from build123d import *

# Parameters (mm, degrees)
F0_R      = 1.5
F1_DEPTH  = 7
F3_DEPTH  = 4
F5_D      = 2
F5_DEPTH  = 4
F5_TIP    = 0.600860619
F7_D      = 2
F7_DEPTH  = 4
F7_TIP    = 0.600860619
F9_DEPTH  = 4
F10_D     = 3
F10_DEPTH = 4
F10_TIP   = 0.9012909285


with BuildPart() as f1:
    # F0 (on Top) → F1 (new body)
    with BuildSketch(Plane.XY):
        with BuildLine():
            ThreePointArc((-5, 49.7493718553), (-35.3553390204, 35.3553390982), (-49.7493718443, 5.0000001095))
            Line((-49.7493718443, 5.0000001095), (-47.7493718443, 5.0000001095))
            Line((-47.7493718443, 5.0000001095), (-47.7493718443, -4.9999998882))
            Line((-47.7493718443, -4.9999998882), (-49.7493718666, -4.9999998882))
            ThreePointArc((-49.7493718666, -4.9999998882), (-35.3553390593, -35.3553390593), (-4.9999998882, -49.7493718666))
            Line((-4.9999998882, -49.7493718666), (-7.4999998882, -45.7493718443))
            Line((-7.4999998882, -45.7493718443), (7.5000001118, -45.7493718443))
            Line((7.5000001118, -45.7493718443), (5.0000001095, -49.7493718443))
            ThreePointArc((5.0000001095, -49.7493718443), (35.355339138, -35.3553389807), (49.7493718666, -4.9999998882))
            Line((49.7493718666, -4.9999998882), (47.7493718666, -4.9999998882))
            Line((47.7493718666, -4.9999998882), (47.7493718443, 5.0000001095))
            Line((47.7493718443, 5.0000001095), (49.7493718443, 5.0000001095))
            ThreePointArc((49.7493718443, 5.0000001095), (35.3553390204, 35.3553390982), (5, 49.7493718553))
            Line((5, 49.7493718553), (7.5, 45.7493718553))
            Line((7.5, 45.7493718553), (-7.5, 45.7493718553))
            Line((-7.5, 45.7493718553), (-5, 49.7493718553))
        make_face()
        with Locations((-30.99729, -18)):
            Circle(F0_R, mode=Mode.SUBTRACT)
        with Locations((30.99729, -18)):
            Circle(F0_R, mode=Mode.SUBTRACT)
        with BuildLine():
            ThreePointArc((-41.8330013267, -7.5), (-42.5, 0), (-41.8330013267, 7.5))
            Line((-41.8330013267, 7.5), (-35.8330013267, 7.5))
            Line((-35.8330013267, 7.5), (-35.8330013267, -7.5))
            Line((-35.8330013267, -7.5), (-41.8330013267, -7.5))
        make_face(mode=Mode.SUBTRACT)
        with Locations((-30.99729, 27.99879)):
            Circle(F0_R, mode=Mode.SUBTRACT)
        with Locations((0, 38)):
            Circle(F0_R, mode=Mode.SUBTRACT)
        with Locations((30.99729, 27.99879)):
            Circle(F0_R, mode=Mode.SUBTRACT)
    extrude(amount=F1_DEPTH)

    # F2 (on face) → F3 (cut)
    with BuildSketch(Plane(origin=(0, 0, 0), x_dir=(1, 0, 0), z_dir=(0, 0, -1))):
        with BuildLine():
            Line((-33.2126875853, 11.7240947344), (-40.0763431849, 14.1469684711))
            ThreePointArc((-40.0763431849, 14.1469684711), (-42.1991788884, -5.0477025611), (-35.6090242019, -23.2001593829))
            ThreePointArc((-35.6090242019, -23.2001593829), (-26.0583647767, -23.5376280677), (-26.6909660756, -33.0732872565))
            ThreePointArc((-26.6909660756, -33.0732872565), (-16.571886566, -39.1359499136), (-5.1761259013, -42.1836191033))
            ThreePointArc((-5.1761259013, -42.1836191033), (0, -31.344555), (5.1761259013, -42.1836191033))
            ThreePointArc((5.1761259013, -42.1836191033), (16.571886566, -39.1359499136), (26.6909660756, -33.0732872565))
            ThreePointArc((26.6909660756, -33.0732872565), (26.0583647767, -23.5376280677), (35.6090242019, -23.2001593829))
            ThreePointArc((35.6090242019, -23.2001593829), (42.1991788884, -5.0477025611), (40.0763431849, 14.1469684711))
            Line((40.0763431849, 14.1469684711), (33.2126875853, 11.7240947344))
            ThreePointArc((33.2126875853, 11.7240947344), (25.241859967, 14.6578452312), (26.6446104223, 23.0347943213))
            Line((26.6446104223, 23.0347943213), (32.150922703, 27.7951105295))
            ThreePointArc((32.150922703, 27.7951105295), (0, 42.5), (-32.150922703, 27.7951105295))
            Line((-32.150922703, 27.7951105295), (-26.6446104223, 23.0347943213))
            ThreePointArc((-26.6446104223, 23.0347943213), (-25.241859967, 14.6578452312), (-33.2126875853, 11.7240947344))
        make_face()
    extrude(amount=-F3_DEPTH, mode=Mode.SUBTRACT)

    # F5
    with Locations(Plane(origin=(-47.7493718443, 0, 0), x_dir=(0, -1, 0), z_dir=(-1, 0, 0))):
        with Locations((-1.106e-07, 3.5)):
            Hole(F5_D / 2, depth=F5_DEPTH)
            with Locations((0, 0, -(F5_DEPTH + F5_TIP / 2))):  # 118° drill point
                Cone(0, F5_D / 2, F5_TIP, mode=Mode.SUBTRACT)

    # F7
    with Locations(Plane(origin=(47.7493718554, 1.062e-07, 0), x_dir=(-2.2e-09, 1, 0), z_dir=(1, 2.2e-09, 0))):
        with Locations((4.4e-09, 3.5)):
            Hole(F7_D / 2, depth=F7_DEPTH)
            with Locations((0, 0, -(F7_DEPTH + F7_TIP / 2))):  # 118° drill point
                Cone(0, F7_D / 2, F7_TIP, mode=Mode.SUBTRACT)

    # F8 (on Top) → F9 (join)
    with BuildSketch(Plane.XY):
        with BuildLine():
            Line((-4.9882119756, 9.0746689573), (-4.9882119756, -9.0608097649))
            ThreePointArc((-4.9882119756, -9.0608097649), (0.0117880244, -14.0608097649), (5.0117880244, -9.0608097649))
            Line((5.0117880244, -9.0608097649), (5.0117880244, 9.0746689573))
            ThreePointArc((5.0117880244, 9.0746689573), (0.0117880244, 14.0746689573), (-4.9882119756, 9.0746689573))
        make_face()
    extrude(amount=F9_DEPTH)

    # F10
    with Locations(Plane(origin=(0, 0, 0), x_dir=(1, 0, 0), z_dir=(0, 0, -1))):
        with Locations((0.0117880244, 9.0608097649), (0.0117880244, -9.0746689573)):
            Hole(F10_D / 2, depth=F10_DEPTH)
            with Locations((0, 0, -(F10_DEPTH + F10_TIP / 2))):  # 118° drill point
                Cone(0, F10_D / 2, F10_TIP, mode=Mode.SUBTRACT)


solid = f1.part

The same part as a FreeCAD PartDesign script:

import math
import FreeCAD as App
import Part
import Sketcher

V = App.Vector
Q = App.Units.Quantity

doc = App.newDocument("Part")
body = doc.addObject("PartDesign::Body", "Body")

sketch1 = body.newObject("Sketcher::SketchObject", "Sketch")
sketch1.AttachmentSupport = (doc.getObject("XY_Plane"), [""])
sketch1.MapMode = "FlatFace"
sketch1.addGeometry([
    Part.ArcOfCircle(Part.Circle(V(0, 0, 0), V(0, 0, 1), 50), math.radians(96), math.radians(174)),
    Part.LineSegment(V(-49.7, 5, 0), V(-47.7, 5, 0)),
    Part.LineSegment(V(-47.7, 5, 0), V(-47.7, -5, 0)),
    Part.LineSegment(V(-47.7, -5, 0), V(-49.7, -5, 0)),
    Part.ArcOfCircle(Part.Circle(V(0, 0, 0), V(0, 0, 1), 50), math.radians(-174), math.radians(-96)),
    Part.LineSegment(V(-5, -49.7, 0), V(-7.5, -45.7, 0)),
    Part.LineSegment(V(-7.5, -45.7, 0), V(7.5, -45.7, 0)),
    Part.LineSegment(V(7.5, -45.7, 0), V(5, -49.7, 0)),
    Part.ArcOfCircle(Part.Circle(V(0, 0, 0), V(0, 0, 1), 50), math.radians(-84), math.radians(-6)),
    Part.LineSegment(V(49.7, -5, 0), V(47.7, -5, 0)),
    Part.LineSegment(V(47.7, -5, 0), V(47.7, 5, 0)),
    Part.LineSegment(V(47.7, 5, 0), V(49.7, 5, 0)),
    Part.ArcOfCircle(Part.Circle(V(0, 0, 0), V(0, 0, 1), 50), math.radians(6), math.radians(84)),
    Part.LineSegment(V(5, 49.7, 0), V(7.5, 45.7, 0)),
    Part.LineSegment(V(7.5, 45.7, 0), V(-7.5, 45.7, 0)),
    Part.LineSegment(V(-7.5, 45.7, 0), V(-5, 49.7, 0)),
    Part.Circle(V(-31, -18, 0), V(0, 0, 1), 1.5),
    Part.LineSegment(V(-35.8, -7.5, 0), V(-41.8, -7.5, 0)),
    Part.ArcOfCircle(Part.Circle(V(0, 0, 0), V(0, 0, 1), 42.5), math.radians(170), math.radians(190)),
    Part.LineSegment(V(-41.8, 7.5, 0), V(-35.8, 7.5, 0)),
    Part.LineSegment(V(-35.8, 7.5, 0), V(-35.8, -7.5, 0)),
    Part.Circle(V(31, -18, 0), V(0, 0, 1), 1.5),
    Part.Circle(V(-31, 28, 0), V(0, 0, 1), 1.5),
    Part.Circle(V(0, 38, 0), V(0, 0, 1), 1.5),
    Part.Circle(V(31, 28, 0), V(0, 0, 1), 1.5),
], False)
sketch1.addConstraint([
    Sketcher.Constraint("Coincident", 0, 2, 1, 1),
    Sketcher.Constraint("Coincident", 1, 2, 2, 1),
    Sketcher.Constraint("Coincident", 2, 2, 3, 1),
    Sketcher.Constraint("Coincident", 3, 2, 4, 1),
    Sketcher.Constraint("Coincident", 4, 2, 5, 1),
    Sketcher.Constraint("Coincident", 5, 2, 6, 1),
    Sketcher.Constraint("Coincident", 6, 2, 7, 1),
    Sketcher.Constraint("Coincident", 7, 2, 8, 1),
    Sketcher.Constraint("Coincident", 8, 2, 9, 1),
    Sketcher.Constraint("Coincident", 9, 2, 10, 1),
    Sketcher.Constraint("Coincident", 10, 2, 11, 1),
    Sketcher.Constraint("Coincident", 11, 2, 12, 1),
    Sketcher.Constraint("Coincident", 12, 2, 13, 1),
    Sketcher.Constraint("Coincident", 13, 2, 14, 1),
    Sketcher.Constraint("Coincident", 14, 2, 15, 1),
    Sketcher.Constraint("Coincident", 15, 2, 0, 1),
    Sketcher.Constraint("Coincident", 17, 2, 18, 2),
    Sketcher.Constraint("Coincident", 18, 1, 19, 1),
    Sketcher.Constraint("Coincident", 19, 2, 20, 1),
    Sketcher.Constraint("Coincident", 20, 2, 17, 1),
    Sketcher.Constraint("Horizontal", 1),
    Sketcher.Constraint("Vertical", 2),
    Sketcher.Constraint("Horizontal", 3),
    Sketcher.Constraint("Horizontal", 6),
    Sketcher.Constraint("Horizontal", 9),
    Sketcher.Constraint("Vertical", 10),
    Sketcher.Constraint("Horizontal", 11),
    Sketcher.Constraint("Horizontal", 14),
    Sketcher.Constraint("Horizontal", 17),
    Sketcher.Constraint("Horizontal", 19),
    Sketcher.Constraint("Vertical", 20),
    Sketcher.Constraint("Coincident", 0, 3, -1, 1),
    Sketcher.Constraint("Coincident", 4, 3, -1, 1),
    Sketcher.Constraint("Coincident", 8, 3, -1, 1),
    Sketcher.Constraint("Coincident", 12, 3, -1, 1),
    Sketcher.Constraint("Coincident", 18, 3, -1, 1),
    Sketcher.Constraint("Equal", 0, 4),
    Sketcher.Constraint("Equal", 4, 8),
    Sketcher.Constraint("Equal", 8, 12),
    Sketcher.Constraint("Equal", 16, 21),
    Sketcher.Constraint("Equal", 21, 22),
    Sketcher.Constraint("Equal", 22, 23),
    Sketcher.Constraint("Equal", 23, 24),
    Sketcher.Constraint("Symmetric", 1, 2, 9, 2, -1, 1),
    Sketcher.Constraint("Symmetric", 5, 2, 13, 2, -1, 1),
    Sketcher.Constraint("Symmetric", 16, 3, 21, 3, -2),
    Sketcher.Constraint("Symmetric", 22, 3, 24, 3, -2),
    Sketcher.Constraint("PointOnObject", 23, 3, -2),
    Sketcher.Constraint("Parallel", 5, 13),
    Sketcher.Constraint("Parallel", 7, 15),
    Sketcher.Constraint("Horizontal", 4, 2, 7, 2),
    Sketcher.Constraint("Horizontal", 3, 2, 8, 2),
    Sketcher.Constraint("Horizontal", 1, 2, 10, 2),
    Sketcher.Constraint("Horizontal", 12, 2, 15, 2),
    Sketcher.Constraint("Vertical", 16, 3, 22, 3),
    Sketcher.Constraint("Vertical", 6, 2, 13, 2),
    Sketcher.Constraint("Vertical", 17, 2, 18, 1),
    Sketcher.Constraint("Equal", 14, 20),
    Sketcher.Constraint("Diameter", 16, Q("3 mm")),
    Sketcher.Constraint("Radius", 0, Q("50 mm")),
    Sketcher.Constraint("Radius", 18, Q("42.5 mm")),
    Sketcher.Constraint("DistanceX", 1, 1, 1, 2, Q("2 mm")),
    Sketcher.Constraint("DistanceX", 6, 1, 6, 2, Q("15 mm")),
    Sketcher.Constraint("DistanceX", 17, 2, 17, 1, Q("6 mm")),
    Sketcher.Constraint("DistanceY", 2, 2, 2, 1, Q("10 mm")),
    Sketcher.Constraint("DistanceY", 16, 3, -1, 1, Q("18 mm")),
    Sketcher.Constraint("DistanceY", -1, 1, 23, 3, Q("38 mm")),
    Sketcher.Constraint("DistanceX", 4, 2, -1, 1, Q("5 mm")),
    Sketcher.Constraint("DistanceY", 4, 2, 5, 2, Q("4 mm")),
    Sketcher.Constraint("DistanceX", 16, 3, -1, 1, Q("30.99729 mm")),
    Sketcher.Constraint("DistanceY", -1, 1, 22, 3, Q("27.99879 mm")),
])
pad1 = body.newObject("PartDesign::Pad", "Pad")
pad1.Profile = sketch1
pad1.Length = 7

sketch2 = body.newObject("Sketcher::SketchObject", "Sketch001")
sketch2.AttachmentSupport = (doc.getObject("XY_Plane"), [""])
sketch2.MapMode = "FlatFace"
sketch2.addGeometry([
    Part.LineSegment(V(-33, -12, 0), V(-40, -14, 0)),
    Part.ArcOfCircle(Part.Circle(V(0, 0, 0), V(0, 0, 1), 42), math.radians(147), math.radians(199)),
    Part.ArcOfCircle(Part.Circle(V(-31, 28, 0), V(0, 0, 1), 7), math.radians(-134), math.radians(50)),
    Part.ArcOfCircle(Part.Circle(V(0, 0, 0), V(0, 0, 1), 43), math.radians(97), math.radians(129)),
    Part.ArcOfCircle(Part.Circle(V(0, 38, 0), V(0, 0, 1), 7), math.radians(141), math.radians(399)),
    Part.ArcOfCircle(Part.Circle(V(0, 0, 0), V(0, 0, 1), 43), math.radians(51), math.radians(83)),
    Part.ArcOfCircle(Part.Circle(V(31, 28, 0), V(0, 0, 1), 7), math.radians(130), math.radians(314)),
    Part.ArcOfCircle(Part.Circle(V(0, 0, 0), V(0, 0, 1), 42), math.radians(-19), math.radians(33)),
    Part.LineSegment(V(40, -14, 0), V(33, -12, 0)),
    Part.ArcOfCircle(Part.Circle(V(31, -18, 0), V(0, 0, 1), 7), math.radians(71), math.radians(229)),
    Part.LineSegment(V(27, -23, 0), V(32, -28, 0)),
    Part.ArcOfCircle(Part.Circle(V(0, 0, 0), V(0, 0, 1), 42), math.radians(-139), math.radians(-41)),
    Part.LineSegment(V(-32, -28, 0), V(-27, -23, 0)),
    Part.ArcOfCircle(Part.Circle(V(-31, -18, 0), V(0, 0, 1), 7), math.radians(-49), math.radians(109)),
], False)
sketch2.addConstraint([
    Sketcher.Constraint("Coincident", 0, 2, 1, 2),
    Sketcher.Constraint("Coincident", 1, 1, 2, 1),
    Sketcher.Constraint("Coincident", 2, 2, 3, 2),
    Sketcher.Constraint("Coincident", 3, 1, 4, 1),
    Sketcher.Constraint("Coincident", 4, 2, 5, 2),
    Sketcher.Constraint("Coincident", 5, 1, 6, 1),
    Sketcher.Constraint("Coincident", 6, 2, 7, 2),
    Sketcher.Constraint("Coincident", 7, 1, 8, 1),
    Sketcher.Constraint("Tangent", 8, 2, 9, 1),
    Sketcher.Constraint("Tangent", 9, 2, 10, 1),
    Sketcher.Constraint("Coincident", 10, 2, 11, 2),
    Sketcher.Constraint("Coincident", 11, 1, 12, 1),
    Sketcher.Constraint("Tangent", 12, 2, 13, 1),
    Sketcher.Constraint("Tangent", 13, 2, 0, 1),
    Sketcher.Constraint("Coincident", 1, 3, -1, 1),
    Sketcher.Constraint("Coincident", 3, 3, -1, 1),
    Sketcher.Constraint("Coincident", 5, 3, -1, 1),
    Sketcher.Constraint("Coincident", 7, 3, -1, 1),
    Sketcher.Constraint("Coincident", 11, 3, -1, 1),
    Sketcher.Constraint("Equal", 1, 3),
    Sketcher.Constraint("Equal", 2, 4),
    Sketcher.Constraint("Equal", 3, 5),
    Sketcher.Constraint("Equal", 4, 6),
    Sketcher.Constraint("Equal", 5, 7),
    Sketcher.Constraint("Equal", 6, 9),
    Sketcher.Constraint("Equal", 7, 11),
    Sketcher.Constraint("Equal", 9, 13),
    Sketcher.Constraint("Symmetric", 2, 3, 6, 3, -2),
    Sketcher.Constraint("Symmetric", 9, 3, 13, 3, -2),
    Sketcher.Constraint("PointOnObject", 4, 3, -2),
    Sketcher.Constraint("Horizontal", 0, 2, 7, 1),
    Sketcher.Constraint("Horizontal", 10, 2, 11, 1),
    Sketcher.Constraint("Vertical", 6, 3, 9, 3),
    Sketcher.Constraint("Equal", 8, 10),
    Sketcher.Constraint("Radius", 1, Q("42.5 mm")),
    Sketcher.Constraint("DistanceY", -1, 1, 4, 3, Q("38 mm")),
    Sketcher.Constraint("DistanceY", 9, 3, -1, 1, Q("18 mm")),
    Sketcher.Constraint("Radius", 2, Q("6.655445 mm")),
    Sketcher.Constraint("DistanceX", 1, 1, 3, 1, Q("30.432898 mm")),
    Sketcher.Constraint("DistanceY", 9, 2, 8, 2, Q("11.3107 mm")),
    Sketcher.Constraint("DistanceX", 2, 3, -1, 1, Q("30.99729 mm")),
])
pocket1 = body.newObject("PartDesign::Pocket", "Pocket")
pocket1.Profile = sketch2
pocket1.Length = 4
pocket1.Reversed = True

sketch3 = body.newObject("Sketcher::SketchObject", "Sketch002")
sketch3.AttachmentSupport = (doc.getObject("YZ_Plane"), [""])
sketch3.MapMode = "FlatFace"
sketch3.AttachmentOffset = App.Placement(V(0, 0, -47.749372), App.Rotation())
sketch3.addGeometry(Part.Circle(V(0, 3.5, 0), V(0, 0, 1), 1), False)
sketch3.addConstraint([
    Sketcher.Constraint("PointOnObject", 0, 3, -2),
    Sketcher.Constraint("Diameter", 0, Q("2 mm")),
    Sketcher.Constraint("DistanceY", -1, 1, 0, 3, Q("3.5 mm")),
])
doc.recompute()
hole = body.newObject("PartDesign::Hole", "Hole")
hole.Profile = sketch3
hole.ThreadType = "None"
hole.Diameter = 2
hole.DepthType = "Dimension"
hole.Depth = 4
hole.DrillPoint = "Angled"
hole.DrillPointAngle = 118
hole.Reversed = True

sketch4 = body.newObject("Sketcher::SketchObject", "Sketch003")
sketch4.AttachmentSupport = (doc.getObject("YZ_Plane"), [""])
sketch4.MapMode = "FlatFace"
sketch4.AttachmentOffset = App.Placement(V(0, 0, 47.749372), App.Rotation())
sketch4.addGeometry(Part.Circle(V(0, 3.5, 0), V(0, 0, 1), 1), False)
sketch4.addConstraint([
    Sketcher.Constraint("PointOnObject", 0, 3, -2),
    Sketcher.Constraint("Diameter", 0, Q("2 mm")),
    Sketcher.Constraint("DistanceY", -1, 1, 0, 3, Q("3.5 mm")),
])
doc.recompute()
hole2 = body.newObject("PartDesign::Hole", "Hole001")
hole2.Profile = sketch4
hole2.ThreadType = "None"
hole2.Diameter = 2
hole2.DepthType = "Dimension"
hole2.Depth = 4
hole2.DrillPoint = "Angled"
hole2.DrillPointAngle = 118

sketch5 = body.newObject("Sketcher::SketchObject", "Sketch004")
sketch5.AttachmentSupport = (doc.getObject("XY_Plane"), [""])
sketch5.MapMode = "FlatFace"
sketch5.addGeometry([
    Part.LineSegment(V(-5, 9, 0), V(-5, -9, 0)),
    Part.ArcOfCircle(Part.Circle(V(0, -9, 0), V(0, 0, 1), 5), math.radians(180), math.radians(360)),
    Part.LineSegment(V(5, -9, 0), V(5, 9, 0)),
    Part.ArcOfCircle(Part.Circle(V(0, 9, 0), V(0, 0, 1), 5), math.radians(0), math.radians(180)),
], False)
sketch5.addConstraint([
    Sketcher.Constraint("Tangent", 0, 2, 1, 1),
    Sketcher.Constraint("Tangent", 1, 2, 2, 1),
    Sketcher.Constraint("Tangent", 2, 2, 3, 1),
    Sketcher.Constraint("Tangent", 3, 2, 0, 1),
    Sketcher.Constraint("Vertical", 0),
    Sketcher.Constraint("Vertical", 2),
    Sketcher.Constraint("Radius", 1, Q("5 mm")),
    Sketcher.Constraint("DistanceY", 0, 2, 0, 1, Q("18.135479 mm")),
    Sketcher.Constraint("DistanceX", -1, 1, 1, 3, Q("0.011788 mm")),
    Sketcher.Constraint("DistanceY", 1, 3, -1, 1, Q("9.06081 mm")),
])
pad2 = body.newObject("PartDesign::Pad", "Pad001")
pad2.Profile = sketch5
pad2.Length = 4

sketch6 = body.newObject("Sketcher::SketchObject", "Sketch005")
sketch6.AttachmentSupport = (doc.getObject("XY_Plane"), [""])
sketch6.MapMode = "FlatFace"
sketch6.addGeometry([
    Part.Circle(V(0, -9.1, 0), V(0, 0, 1), 1.5),
    Part.Circle(V(0, 9.1, 0), V(0, 0, 1), 1.5),
], False)
sketch6.addConstraint([
    Sketcher.Constraint("Equal", 0, 1),
    Sketcher.Constraint("Vertical", 0, 3, 1, 3),
    Sketcher.Constraint("Diameter", 0, Q("3 mm")),
    Sketcher.Constraint("DistanceX", -1, 1, 0, 3, Q("0.011788 mm")),
    Sketcher.Constraint("DistanceY", 0, 3, -1, 1, Q("9.06081 mm")),
    Sketcher.Constraint("DistanceY", -1, 1, 1, 3, Q("9.074669 mm")),
])
doc.recompute()
hole3 = body.newObject("PartDesign::Hole", "Hole002")
hole3.Profile = sketch6
hole3.ThreadType = "None"
hole3.Diameter = 3
hole3.DepthType = "Dimension"
hole3.Depth = 4
hole3.DrillPoint = "Angled"
hole3.DrillPointAngle = 118
hole3.Reversed = True

doc.recompute()
